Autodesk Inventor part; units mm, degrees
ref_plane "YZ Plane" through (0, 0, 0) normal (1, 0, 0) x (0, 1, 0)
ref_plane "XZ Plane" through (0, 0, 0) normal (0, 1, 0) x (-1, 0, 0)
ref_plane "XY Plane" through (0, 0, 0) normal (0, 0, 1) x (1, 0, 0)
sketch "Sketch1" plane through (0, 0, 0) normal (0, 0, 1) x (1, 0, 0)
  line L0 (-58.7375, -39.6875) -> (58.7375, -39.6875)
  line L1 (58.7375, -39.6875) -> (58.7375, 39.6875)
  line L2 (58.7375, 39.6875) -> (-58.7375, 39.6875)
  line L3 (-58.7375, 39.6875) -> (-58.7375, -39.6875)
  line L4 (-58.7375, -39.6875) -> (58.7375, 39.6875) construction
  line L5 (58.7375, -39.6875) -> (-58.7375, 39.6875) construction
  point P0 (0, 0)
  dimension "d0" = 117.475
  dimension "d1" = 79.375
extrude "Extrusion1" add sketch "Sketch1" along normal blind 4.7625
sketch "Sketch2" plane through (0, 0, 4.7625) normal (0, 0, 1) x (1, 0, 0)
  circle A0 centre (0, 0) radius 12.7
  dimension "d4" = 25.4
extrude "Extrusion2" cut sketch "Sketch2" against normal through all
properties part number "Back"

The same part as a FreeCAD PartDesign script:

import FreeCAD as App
import Part
import Sketcher

V = App.Vector
Q = App.Units.Quantity


def add_polygon(sketch, points):
    """Adds a closed chain of lines whose ends are joined by coincident constraints."""
    first, n = sketch.GeometryCount, len(points)
    for a, b in zip(points, points[1:] + points[:1]):
        sketch.addGeometry(Part.LineSegment(App.Vector(*a, 0), App.Vector(*b, 0)), False)
    for i in range(n):
        sketch.addConstraint(Sketcher.Constraint("Coincident", first + i, 2, first + (i + 1) % n, 1))

doc = App.newDocument("Part")
body = doc.addObject("PartDesign::Body", "Body")

sketch1 = body.newObject("Sketcher::SketchObject", "Sketch")
sketch1.AttachmentSupport = (doc.getObject("XY_Plane"), [""])
sketch1.MapMode = "FlatFace"
add_polygon(sketch1, [(-59, 40), (-59, -40), (59, -40), (59, 40)])
sketch1.addConstraint([
    Sketcher.Constraint("Vertical", 0),
    Sketcher.Constraint("Horizontal", 1),
    Sketcher.Constraint("Vertical", 2),
    Sketcher.Constraint("Horizontal", 3),
    Sketcher.Constraint("Symmetric", 0, 2, 2, 2, -1, 1),
    Sketcher.Constraint("DistanceX", 1, 1, 1, 2, Q("4.625 in")),
    Sketcher.Constraint("DistanceY", 0, 2, 0, 1, Q("3.125 in")),
])
pad1 = body.newObject("PartDesign::Pad", "Pad")
pad1.Profile = sketch1
pad1.Length = Q("0.1875 in")

sketch2 = body.newObject("Sketcher::SketchObject", "Sketch001")
sketch2.AttachmentSupport = (doc.getObject("XY_Plane"), [""])
sketch2.MapMode = "FlatFace"
sketch2.AttachmentOffset = App.Placement(V(0, 0, 0.1875 * 25.4), App.Rotation())
sketch2.addGeometry(Part.Circle(V(0, 0, 0), V(0, 0, 1), 13), False)
sketch2.addConstraint([
    Sketcher.Constraint("Coincident", 0, 3, -1, 1),
    Sketcher.Constraint("Diameter", 0, Q("1 in")),
])
pocket1 = body.newObject("PartDesign::Pocket", "Pocket")
pocket1.Profile = sketch2
pocket1.Type = "ThroughAll"

doc.recompute()
